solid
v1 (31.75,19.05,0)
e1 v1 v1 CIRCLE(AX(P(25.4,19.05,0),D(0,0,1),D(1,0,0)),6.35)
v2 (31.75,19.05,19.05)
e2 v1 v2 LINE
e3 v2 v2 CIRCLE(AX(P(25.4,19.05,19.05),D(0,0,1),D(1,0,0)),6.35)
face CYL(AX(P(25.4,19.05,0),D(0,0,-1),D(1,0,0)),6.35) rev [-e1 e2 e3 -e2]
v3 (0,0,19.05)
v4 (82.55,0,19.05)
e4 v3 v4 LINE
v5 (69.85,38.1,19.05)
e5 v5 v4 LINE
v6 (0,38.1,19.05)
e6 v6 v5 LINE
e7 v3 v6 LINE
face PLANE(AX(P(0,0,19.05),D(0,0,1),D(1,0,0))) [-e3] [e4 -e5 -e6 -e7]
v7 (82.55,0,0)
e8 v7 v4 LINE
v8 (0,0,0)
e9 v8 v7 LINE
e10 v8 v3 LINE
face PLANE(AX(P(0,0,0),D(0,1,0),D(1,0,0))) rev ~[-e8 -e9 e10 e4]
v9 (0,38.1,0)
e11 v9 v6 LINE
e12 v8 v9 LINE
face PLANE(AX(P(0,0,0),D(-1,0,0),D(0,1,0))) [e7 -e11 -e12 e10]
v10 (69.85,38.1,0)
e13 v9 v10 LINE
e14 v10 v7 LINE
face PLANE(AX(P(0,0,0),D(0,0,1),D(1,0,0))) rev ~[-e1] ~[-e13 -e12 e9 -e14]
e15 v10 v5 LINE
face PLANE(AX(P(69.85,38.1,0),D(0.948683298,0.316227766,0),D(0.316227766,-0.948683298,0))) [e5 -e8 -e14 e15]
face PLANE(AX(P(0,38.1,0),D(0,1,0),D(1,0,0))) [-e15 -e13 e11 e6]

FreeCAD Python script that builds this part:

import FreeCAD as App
import Part
import Sketcher
from FreeCAD import Vector
Q = App.Units.Quantity


def add_polygon(sketch, points):
    """Adds a closed chain of lines whose ends are joined by coincident constraints."""
    first, n = sketch.GeometryCount, len(points)
    for a, b in zip(points, points[1:] + points[:1]):
        sketch.addGeometry(Part.LineSegment(App.Vector(*a, 0), App.Vector(*b, 0)), False)
    for i in range(n):
        sketch.addConstraint(Sketcher.Constraint("Coincident", first + i, 2, first + (i + 1) % n, 1))

doc = App.newDocument("Part")
body = doc.addObject("PartDesign::Body", "Body")

# Sketch on XY plane
sketch1 = doc.addObject("Sketcher::SketchObject", "Sketch")
body.addObject(sketch1)
sketch1.AttachmentSupport = (doc.XY_Plane, [""])
sketch1.MapMode = "FlatFace"
add_polygon(sketch1, [(0, 38), (0, 0), (83, 0), (70, 38)])  # lines 0-3
sketch1.addGeometry(Part.Circle(Vector(25, 19, 0), Vector(0, 0, 1), 6), False)  # 4
sketch1.addConstraint(Sketcher.Constraint("Vertical", 0))
sketch1.addConstraint(Sketcher.Constraint("Horizontal", 1))
sketch1.addConstraint(Sketcher.Constraint("Horizontal", 3))
sketch1.addConstraint(Sketcher.Constraint("Coincident", 0, 2, -1, 1))
sketch1.addConstraint(Sketcher.Constraint("Diameter", 4, Q("0.5 in")))
sketch1.addConstraint(Sketcher.Constraint("DistanceY", 0, 2, 0, 1, Q("1.5 in")))
sketch1.addConstraint(Sketcher.Constraint("DistanceX", -1, 1, 4, 3, Q("1 in")))
sketch1.addConstraint(Sketcher.Constraint("DistanceX", 1, 1, 1, 2, Q("3.25 in")))
sketch1.addConstraint(Sketcher.Constraint("DistanceX", 3, 2, 3, 1, Q("2.75 in")))
sketch1.addConstraint(Sketcher.Constraint("DistanceY", -1, 1, 4, 3, Q("0.75 in")))
pad1 = doc.addObject("PartDesign::Pad", "Pad")
body.addObject(pad1)
pad1.Profile = sketch1
pad1.Length = Q("0.75 in")

doc.recompute()
